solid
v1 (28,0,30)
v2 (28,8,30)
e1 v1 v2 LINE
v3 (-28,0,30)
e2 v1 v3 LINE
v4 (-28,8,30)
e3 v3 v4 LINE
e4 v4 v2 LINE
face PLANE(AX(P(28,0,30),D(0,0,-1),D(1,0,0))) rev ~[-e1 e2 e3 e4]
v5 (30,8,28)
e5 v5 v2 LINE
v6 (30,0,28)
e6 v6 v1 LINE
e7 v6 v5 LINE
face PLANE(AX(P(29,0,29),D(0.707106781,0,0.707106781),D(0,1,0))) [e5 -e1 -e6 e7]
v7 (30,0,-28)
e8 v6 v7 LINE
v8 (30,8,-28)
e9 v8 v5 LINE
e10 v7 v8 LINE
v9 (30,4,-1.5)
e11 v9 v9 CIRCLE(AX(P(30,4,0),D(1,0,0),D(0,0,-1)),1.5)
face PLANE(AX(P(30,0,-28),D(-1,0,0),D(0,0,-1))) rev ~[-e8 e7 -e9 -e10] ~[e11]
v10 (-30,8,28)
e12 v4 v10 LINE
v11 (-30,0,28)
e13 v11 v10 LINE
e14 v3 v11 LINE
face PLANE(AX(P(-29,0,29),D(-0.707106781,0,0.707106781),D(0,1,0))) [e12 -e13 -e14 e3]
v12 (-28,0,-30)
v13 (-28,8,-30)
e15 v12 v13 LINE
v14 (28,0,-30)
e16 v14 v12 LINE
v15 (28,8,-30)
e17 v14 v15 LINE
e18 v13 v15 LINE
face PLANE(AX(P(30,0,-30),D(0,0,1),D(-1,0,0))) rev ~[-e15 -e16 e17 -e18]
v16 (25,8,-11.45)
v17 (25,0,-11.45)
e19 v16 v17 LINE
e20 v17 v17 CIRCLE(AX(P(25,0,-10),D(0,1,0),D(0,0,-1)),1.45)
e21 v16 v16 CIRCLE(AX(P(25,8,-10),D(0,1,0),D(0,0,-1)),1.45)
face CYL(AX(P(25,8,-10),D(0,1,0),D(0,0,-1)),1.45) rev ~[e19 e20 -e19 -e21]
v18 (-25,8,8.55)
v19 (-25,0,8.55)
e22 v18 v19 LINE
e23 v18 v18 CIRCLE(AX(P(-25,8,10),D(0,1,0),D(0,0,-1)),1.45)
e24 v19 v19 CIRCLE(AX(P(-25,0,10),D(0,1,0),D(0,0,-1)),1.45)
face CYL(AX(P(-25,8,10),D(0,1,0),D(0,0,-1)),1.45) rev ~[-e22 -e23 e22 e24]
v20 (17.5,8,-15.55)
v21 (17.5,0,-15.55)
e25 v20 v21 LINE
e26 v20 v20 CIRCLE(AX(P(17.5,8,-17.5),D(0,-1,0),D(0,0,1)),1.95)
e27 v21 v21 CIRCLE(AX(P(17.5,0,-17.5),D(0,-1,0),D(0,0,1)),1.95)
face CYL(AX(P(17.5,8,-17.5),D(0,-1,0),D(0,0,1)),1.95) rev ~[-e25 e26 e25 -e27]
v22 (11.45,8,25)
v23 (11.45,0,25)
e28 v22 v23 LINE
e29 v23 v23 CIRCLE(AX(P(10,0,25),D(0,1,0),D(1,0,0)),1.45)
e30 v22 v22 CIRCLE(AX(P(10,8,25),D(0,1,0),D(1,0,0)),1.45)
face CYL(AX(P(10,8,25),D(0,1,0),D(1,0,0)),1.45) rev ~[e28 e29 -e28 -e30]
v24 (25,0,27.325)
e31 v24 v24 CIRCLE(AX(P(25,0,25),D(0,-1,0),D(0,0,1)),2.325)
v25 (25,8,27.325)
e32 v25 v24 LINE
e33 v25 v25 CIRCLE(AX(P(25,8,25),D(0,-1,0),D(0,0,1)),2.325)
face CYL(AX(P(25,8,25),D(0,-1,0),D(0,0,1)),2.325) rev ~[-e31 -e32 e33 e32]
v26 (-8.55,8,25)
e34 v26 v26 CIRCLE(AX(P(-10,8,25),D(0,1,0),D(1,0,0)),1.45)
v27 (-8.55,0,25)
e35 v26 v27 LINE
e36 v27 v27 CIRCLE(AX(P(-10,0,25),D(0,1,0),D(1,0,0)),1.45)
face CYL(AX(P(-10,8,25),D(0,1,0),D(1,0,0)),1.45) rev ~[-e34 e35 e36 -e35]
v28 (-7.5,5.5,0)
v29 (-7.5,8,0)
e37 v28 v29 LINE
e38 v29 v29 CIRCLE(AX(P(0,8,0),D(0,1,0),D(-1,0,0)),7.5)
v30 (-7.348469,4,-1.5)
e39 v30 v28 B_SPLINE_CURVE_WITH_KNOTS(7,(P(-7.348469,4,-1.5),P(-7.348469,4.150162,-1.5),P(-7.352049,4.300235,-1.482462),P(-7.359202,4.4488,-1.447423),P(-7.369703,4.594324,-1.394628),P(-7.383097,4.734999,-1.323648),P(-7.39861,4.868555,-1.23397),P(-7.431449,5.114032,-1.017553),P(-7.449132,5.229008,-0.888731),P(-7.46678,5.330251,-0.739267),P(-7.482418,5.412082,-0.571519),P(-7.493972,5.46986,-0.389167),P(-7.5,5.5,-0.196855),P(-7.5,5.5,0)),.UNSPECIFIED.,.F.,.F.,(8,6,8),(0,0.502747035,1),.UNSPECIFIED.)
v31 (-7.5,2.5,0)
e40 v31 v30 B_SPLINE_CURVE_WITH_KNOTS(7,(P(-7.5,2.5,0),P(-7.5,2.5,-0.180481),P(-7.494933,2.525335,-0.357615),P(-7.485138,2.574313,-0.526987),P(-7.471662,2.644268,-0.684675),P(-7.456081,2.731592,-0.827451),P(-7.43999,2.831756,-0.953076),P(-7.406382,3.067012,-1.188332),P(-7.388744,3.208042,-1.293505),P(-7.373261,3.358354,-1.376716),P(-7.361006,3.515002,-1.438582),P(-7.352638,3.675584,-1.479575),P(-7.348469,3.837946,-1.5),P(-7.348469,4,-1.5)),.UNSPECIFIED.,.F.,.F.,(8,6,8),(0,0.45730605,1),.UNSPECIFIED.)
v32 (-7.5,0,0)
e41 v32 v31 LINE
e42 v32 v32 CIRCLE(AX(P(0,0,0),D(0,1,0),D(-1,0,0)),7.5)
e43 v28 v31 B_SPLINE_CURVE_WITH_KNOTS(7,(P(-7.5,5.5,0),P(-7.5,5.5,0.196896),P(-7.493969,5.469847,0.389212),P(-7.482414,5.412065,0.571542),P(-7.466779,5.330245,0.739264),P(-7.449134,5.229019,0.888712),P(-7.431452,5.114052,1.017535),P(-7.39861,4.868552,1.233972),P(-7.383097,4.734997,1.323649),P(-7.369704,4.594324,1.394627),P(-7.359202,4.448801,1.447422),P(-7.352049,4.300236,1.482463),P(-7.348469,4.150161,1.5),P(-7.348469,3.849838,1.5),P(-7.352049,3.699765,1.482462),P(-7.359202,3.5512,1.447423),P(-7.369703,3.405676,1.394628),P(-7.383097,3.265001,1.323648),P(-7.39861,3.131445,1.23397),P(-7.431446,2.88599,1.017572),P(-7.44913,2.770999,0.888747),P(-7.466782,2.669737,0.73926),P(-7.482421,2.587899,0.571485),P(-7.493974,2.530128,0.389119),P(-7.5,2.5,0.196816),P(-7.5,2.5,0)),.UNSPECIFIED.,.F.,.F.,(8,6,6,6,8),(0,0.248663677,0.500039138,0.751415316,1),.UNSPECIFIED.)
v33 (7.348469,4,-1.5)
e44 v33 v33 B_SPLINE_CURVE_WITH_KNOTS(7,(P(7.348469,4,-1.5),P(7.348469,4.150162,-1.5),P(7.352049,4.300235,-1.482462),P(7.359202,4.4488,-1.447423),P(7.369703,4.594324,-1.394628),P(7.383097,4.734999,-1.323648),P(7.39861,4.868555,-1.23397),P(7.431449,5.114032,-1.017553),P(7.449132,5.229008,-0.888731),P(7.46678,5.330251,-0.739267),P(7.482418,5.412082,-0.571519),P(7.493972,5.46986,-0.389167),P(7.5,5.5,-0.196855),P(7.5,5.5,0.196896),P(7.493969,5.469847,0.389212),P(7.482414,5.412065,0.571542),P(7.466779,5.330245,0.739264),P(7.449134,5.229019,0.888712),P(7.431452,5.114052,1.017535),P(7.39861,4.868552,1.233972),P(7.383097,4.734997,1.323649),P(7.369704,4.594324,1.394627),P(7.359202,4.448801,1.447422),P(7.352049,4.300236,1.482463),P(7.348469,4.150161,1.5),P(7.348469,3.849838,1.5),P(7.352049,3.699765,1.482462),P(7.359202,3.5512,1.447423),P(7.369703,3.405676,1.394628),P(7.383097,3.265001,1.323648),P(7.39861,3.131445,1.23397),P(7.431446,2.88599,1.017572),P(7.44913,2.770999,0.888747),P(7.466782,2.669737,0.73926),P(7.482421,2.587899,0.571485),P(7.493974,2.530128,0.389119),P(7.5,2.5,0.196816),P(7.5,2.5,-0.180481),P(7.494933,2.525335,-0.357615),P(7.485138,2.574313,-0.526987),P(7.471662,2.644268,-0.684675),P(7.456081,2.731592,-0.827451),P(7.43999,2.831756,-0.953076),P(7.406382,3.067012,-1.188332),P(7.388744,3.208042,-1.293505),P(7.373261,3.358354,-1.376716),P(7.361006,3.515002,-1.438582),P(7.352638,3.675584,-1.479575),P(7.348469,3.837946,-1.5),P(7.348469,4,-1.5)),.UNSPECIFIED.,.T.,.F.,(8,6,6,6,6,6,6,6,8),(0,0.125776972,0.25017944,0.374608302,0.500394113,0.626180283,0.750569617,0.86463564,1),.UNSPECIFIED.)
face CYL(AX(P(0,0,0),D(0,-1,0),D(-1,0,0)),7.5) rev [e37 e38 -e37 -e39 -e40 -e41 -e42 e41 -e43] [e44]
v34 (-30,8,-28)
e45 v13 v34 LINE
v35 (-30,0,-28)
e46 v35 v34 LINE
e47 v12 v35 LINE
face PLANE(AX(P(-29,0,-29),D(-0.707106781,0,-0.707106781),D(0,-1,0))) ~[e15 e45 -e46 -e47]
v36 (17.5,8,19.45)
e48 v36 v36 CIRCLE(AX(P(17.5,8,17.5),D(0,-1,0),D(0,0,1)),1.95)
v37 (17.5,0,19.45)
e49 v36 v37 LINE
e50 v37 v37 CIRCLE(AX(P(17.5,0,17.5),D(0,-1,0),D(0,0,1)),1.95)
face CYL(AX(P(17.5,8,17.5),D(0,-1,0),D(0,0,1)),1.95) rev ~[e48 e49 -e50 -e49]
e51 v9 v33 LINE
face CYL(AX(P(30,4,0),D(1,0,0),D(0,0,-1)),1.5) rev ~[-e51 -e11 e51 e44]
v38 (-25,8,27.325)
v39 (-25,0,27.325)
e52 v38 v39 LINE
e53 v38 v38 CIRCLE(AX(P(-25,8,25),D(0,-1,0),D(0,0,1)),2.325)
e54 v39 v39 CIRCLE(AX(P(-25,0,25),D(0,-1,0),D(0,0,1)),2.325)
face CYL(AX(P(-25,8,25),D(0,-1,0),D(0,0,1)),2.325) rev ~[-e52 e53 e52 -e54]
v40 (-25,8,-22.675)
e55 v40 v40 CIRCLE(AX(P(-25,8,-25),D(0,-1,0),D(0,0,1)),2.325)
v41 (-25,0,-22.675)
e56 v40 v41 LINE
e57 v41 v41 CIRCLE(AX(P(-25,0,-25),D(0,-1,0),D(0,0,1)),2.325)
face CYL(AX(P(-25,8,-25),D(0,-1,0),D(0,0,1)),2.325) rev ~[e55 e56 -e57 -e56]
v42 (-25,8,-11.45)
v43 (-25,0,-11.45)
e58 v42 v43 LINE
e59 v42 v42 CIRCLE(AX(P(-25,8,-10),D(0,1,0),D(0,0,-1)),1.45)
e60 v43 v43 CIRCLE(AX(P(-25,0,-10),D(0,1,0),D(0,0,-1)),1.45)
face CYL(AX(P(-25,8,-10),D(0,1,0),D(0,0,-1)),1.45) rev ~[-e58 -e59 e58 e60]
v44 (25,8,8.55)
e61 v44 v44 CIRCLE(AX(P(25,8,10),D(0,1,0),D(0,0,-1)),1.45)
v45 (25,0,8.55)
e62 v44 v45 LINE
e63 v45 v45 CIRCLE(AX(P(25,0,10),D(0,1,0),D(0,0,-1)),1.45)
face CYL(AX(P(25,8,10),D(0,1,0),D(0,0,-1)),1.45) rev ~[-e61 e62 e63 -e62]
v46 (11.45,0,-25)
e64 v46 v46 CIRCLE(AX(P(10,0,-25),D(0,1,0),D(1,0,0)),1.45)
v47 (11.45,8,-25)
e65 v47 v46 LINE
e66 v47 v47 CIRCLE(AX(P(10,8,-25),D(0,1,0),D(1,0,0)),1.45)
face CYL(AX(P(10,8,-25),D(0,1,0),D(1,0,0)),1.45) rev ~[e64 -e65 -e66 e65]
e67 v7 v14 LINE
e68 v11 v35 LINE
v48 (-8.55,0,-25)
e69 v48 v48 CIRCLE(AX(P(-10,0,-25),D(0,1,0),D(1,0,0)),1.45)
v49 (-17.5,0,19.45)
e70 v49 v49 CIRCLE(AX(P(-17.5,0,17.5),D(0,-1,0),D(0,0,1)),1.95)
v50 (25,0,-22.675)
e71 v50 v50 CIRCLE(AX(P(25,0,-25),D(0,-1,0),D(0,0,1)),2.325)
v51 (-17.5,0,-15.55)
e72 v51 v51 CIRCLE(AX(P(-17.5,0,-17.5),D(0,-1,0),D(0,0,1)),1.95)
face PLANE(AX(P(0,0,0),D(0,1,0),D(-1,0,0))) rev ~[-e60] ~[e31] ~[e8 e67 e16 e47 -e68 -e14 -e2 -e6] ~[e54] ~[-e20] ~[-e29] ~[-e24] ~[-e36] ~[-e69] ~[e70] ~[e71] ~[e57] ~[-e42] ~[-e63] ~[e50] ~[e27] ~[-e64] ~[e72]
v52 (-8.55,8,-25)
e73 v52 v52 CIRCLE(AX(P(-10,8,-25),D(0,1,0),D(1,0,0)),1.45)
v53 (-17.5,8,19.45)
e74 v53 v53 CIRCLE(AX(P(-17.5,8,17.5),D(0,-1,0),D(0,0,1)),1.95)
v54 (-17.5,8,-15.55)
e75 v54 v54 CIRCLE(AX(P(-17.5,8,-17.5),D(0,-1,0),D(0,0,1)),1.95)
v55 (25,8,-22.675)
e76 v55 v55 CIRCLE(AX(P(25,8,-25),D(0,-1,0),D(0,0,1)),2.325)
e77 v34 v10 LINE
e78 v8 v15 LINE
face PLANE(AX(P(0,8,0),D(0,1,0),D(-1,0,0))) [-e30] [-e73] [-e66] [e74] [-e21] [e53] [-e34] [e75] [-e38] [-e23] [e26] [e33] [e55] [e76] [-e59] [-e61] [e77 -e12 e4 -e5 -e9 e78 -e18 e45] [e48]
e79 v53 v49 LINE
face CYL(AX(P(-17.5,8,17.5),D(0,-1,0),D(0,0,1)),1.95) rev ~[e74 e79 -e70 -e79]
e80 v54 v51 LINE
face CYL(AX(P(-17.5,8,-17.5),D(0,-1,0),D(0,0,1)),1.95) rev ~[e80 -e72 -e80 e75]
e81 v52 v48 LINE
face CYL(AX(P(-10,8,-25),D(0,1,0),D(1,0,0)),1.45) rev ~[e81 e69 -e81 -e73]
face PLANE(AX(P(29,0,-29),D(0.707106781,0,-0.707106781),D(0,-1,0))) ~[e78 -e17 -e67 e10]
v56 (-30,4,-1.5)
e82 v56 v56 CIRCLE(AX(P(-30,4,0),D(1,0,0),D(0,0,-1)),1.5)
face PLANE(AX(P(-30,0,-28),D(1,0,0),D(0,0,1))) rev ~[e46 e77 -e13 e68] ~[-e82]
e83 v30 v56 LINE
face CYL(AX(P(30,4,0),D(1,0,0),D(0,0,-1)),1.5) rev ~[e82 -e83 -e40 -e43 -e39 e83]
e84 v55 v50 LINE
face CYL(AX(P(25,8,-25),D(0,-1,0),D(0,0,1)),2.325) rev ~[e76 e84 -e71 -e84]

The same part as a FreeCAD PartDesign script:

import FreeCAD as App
import Part
import Sketcher

V = App.Vector


def edges_at(feature, points):
    """Names of the edges that pass closest to the given points."""
    edges = feature.Shape.Edges
    near = lambda p: min(range(len(edges)), key=lambda i: edges[i].distToShape(Part.Vertex(*p))[0])
    return sorted({f"Edge{near(p) + 1}" for p in points})

doc = App.newDocument("Part")
params = doc.addObject("Spreadsheet::Sheet", "Params")
for row, (alias, value) in enumerate([
    ("sketch1_diameter", "15 mm"),
    ("sketch1_width", "60 mm"),
    ("pad1_length", "8 mm"),
    ("sketch2_diameter", "3.9 mm"),
    ("hole_diameter", "3.9 mm"),
    ("hole_depth", "10 mm"),
    ("chamfer_size", "2 mm"),
    ("sketch3_diameter", "4.65 mm"),
    ("hole2_diameter", "4.65 mm"),
    ("sketch4_diameter", "3 mm"),
    ("sketch5_diameter", "2.9 mm"),
    ("pocket2_length", "10 mm"),
], start=1):
    params.set(f"A{row}", alias)
    params.set(f"B{row}", "=" + value)
    params.setAlias(f"B{row}", alias)

body = doc.addObject("PartDesign::Body", "Body")

# Sketch on XZ plane
sketch1 = body.newObject("Sketcher::SketchObject", "Sketch")
sketch1.AttachmentSupport = (doc.getObject("XZ_Plane"), [""])
sketch1.MapMode = "FlatFace"
sketch1.addGeometry(Part.LineSegment(V(30, -30, 0), V(-30, -30, 0)), False)
sketch1.addGeometry(Part.LineSegment(V(-30, -30, 0), V(-30, 30, 0)), False)
sketch1.addGeometry(Part.LineSegment(V(-30, 30, 0), V(30, 30, 0)), False)
sketch1.addGeometry(Part.LineSegment(V(30, 30, 0), V(30, -30, 0)), False)
sketch1.addGeometry(Part.Circle(V(0, 0, 0), V(0, 0, 1), 8), False)
sketch1.addConstraint(Sketcher.Constraint("Coincident", 0, 2, 1, 1))
sketch1.addConstraint(Sketcher.Constraint("Coincident", 1, 2, 2, 1))
sketch1.addConstraint(Sketcher.Constraint("Coincident", 2, 2, 3, 1))
sketch1.addConstraint(Sketcher.Constraint("Coincident", 3, 2, 0, 1))
sketch1.addConstraint(Sketcher.Constraint("Horizontal", 0))
sketch1.addConstraint(Sketcher.Constraint("Vertical", 1))
sketch1.addConstraint(Sketcher.Constraint("Horizontal", 2))
sketch1.addConstraint(Sketcher.Constraint("Vertical", 3))
sketch1.addConstraint(Sketcher.Constraint("Coincident", 4, 3, -1, 1))
sketch1.addConstraint(Sketcher.Constraint("Symmetric", 0, 2, 2, 2, -1, 1))
sketch1.addConstraint(Sketcher.Constraint("Equal", 2, 1))
sketch1.addConstraint(Sketcher.Constraint("Diameter", 4, 15.0))
sketch1.addConstraint(Sketcher.Constraint("DistanceX", 0, 2, 0, 1, 60.0))
sketch1.setExpression("Constraints[11]", "Params.sketch1_diameter")
sketch1.setExpression("Constraints[12]", "Params.sketch1_width")
pad1 = body.newObject("PartDesign::Pad", "Pad")
pad1.Profile = sketch1
pad1.setExpression("Length", "Params.pad1_length")
pad1.Reversed = True

# Sketch on XZ plane
sketch2 = body.newObject("Sketcher::SketchObject", "Sketch001")
sketch2.AttachmentSupport = (doc.getObject("XZ_Plane"), [""])
sketch2.MapMode = "FlatFace"
sketch2.AttachmentOffset = App.Placement(V(0, 0, -8), App.Rotation())
sketch2.addGeometry(Part.Circle(V(-17.5, 17.5, 0), V(0, 0, 1), 1.9), False)
sketch2.addGeometry(Part.Circle(V(-17.5, -17.5, 0), V(0, 0, 1), 1.9), False)
sketch2.addGeometry(Part.Circle(V(17.5, -17.5, 0), V(0, 0, 1), 1.9), False)
sketch2.addGeometry(Part.Circle(V(17.5, 17.5, 0), V(0, 0, 1), 1.9), False)
sketch2.addConstraint(Sketcher.Constraint("Equal", 0, 1))
sketch2.addConstraint(Sketcher.Constraint("Equal", 1, 2))
sketch2.addConstraint(Sketcher.Constraint("Equal", 2, 3))
sketch2.addConstraint(Sketcher.Constraint("Symmetric", 0, 3, 2, 3, -1, 1))
sketch2.addConstraint(Sketcher.Constraint("Symmetric", 1, 3, 3, 3, -1, 1))
sketch2.addConstraint(Sketcher.Constraint("Symmetric", 1, 3, 2, 3, -2))
sketch2.addConstraint(Sketcher.Constraint("Diameter", 0, 3.9))
sketch2.addConstraint(Sketcher.Constraint("DistanceY", 1, 3, 0, 3, 35.0))
sketch2.addConstraint(Sketcher.Constraint("DistanceX", 1, 3, 2, 3, 35.0))
sketch2.setExpression("Constraints[6]", "Params.sketch2_diameter")
doc.recompute()
hole = body.newObject("PartDesign::Hole", "Hole")
hole.Profile = sketch2
hole.ThreadType = "None"
hole.setExpression("Diameter", "Params.hole_diameter")
hole.DepthType = "Dimension"
hole.setExpression("Depth", "Params.hole_depth")
hole.DrillPoint = "Angled"
hole.DrillPointAngle = 118
hole.Reversed = True
doc.recompute()

chamfer = body.newObject("PartDesign::Chamfer", "Chamfer")
chamfer.Base = (hole, edges_at(hole, [
    (30, 4, 30),
    (30, 4, -30),
    (-30, 4, -30),
    (-30, 4, 30),
]))
chamfer.setExpression("Size", "Params.chamfer_size")

# Sketch on XZ plane
sketch3 = body.newObject("Sketcher::SketchObject", "Sketch002")
sketch3.AttachmentSupport = (doc.getObject("XZ_Plane"), [""])
sketch3.MapMode = "FlatFace"
sketch3.AttachmentOffset = App.Placement(V(0, 0, -8), App.Rotation())
sketch3.addGeometry(Part.Circle(V(-25, -25, 0), V(0, 0, 1), 2.3), False)
sketch3.addGeometry(Part.Circle(V(25, -25, 0), V(0, 0, 1), 2.3), False)
sketch3.addGeometry(Part.Circle(V(25, 25, 0), V(0, 0, 1), 2.3), False)
sketch3.addGeometry(Part.Circle(V(-25, 25, 0), V(0, 0, 1), 2.3), False)
sketch3.addConstraint(Sketcher.Constraint("Equal", 0, 1))
sketch3.addConstraint(Sketcher.Constraint("Equal", 1, 2))
sketch3.addConstraint(Sketcher.Constraint("Equal", 2, 3))
sketch3.addConstraint(Sketcher.Constraint("Symmetric", 0, 3, 2, 3, -1, 1))
sketch3.addConstraint(Sketcher.Constraint("Symmetric", 1, 3, 3, 3, -1, 1))
sketch3.addConstraint(Sketcher.Constraint("Symmetric", 0, 3, 1, 3, -2))
sketch3.addConstraint(Sketcher.Constraint("Diameter", 0, 4.65))
sketch3.addConstraint(Sketcher.Constraint("DistanceX", 0, 3, -1, 1, 25.0))
sketch3.addConstraint(Sketcher.Constraint("DistanceY", 0, 3, -1, 1, 25.0))
sketch3.setExpression("Constraints[6]", "Params.sketch3_diameter")
doc.recompute()
hole2 = body.newObject("PartDesign::Hole", "Hole001")
hole2.Profile = sketch3
hole2.ThreadType = "None"
hole2.setExpression("Diameter", "Params.hole2_diameter")
hole2.DepthType = "ThroughAll"
hole2.Reversed = True

# Sketch on YZ plane
sketch4 = body.newObject("Sketcher::SketchObject", "Sketch003")
sketch4.AttachmentSupport = (doc.getObject("YZ_Plane"), [""])
sketch4.MapMode = "FlatFace"
sketch4.AttachmentOffset = App.Placement(V(0, 0, 30), App.Rotation())
sketch4.addGeometry(Part.Circle(V(4, 0, 0), V(0, 0, 1), 1.5), False)
sketch4.addConstraint(Sketcher.Constraint("PointOnObject", 0, 3, -1))
sketch4.addConstraint(Sketcher.Constraint("Diameter", 0, 3.0))
sketch4.addConstraint(Sketcher.Constraint("DistanceX", -1, 1, 0, 3, 4.0))
sketch4.setExpression("Constraints[1]", "Params.sketch4_diameter")
pocket1 = body.newObject("PartDesign::Pocket", "Pocket")
pocket1.Profile = sketch4
pocket1.Type = "ThroughAll"

# Sketch on XZ plane
sketch5 = body.newObject("Sketcher::SketchObject", "Sketch004")
sketch5.AttachmentSupport = (doc.getObject("XZ_Plane"), [""])
sketch5.MapMode = "FlatFace"
sketch5.AttachmentOffset = App.Placement(V(0, 0, -8), App.Rotation())
sketch5.addGeometry(Part.Circle(V(10, 25, 0), V(0, 0, 1), 1.4), False)
sketch5.addGeometry(Part.Circle(V(-10, 25, 0), V(0, 0, 1), 1.4), False)
sketch5.addGeometry(Part.Circle(V(10, -25, 0), V(0, 0, 1), 1.4), False)
sketch5.addGeometry(Part.Circle(V(-10, -25, 0), V(0, 0, 1), 1.4), False)
sketch5.addConstraint(Sketcher.Constraint("Equal", 0, 1))
sketch5.addConstraint(Sketcher.Constraint("Equal", 1, 2))
sketch5.addConstraint(Sketcher.Constraint("Equal", 2, 3))
sketch5.addConstraint(Sketcher.Constraint("Symmetric", 1, 3, 2, 3, -1, 1))
sketch5.addConstraint(Sketcher.Constraint("Symmetric", 0, 3, 3, 3, -1, 1))
sketch5.addConstraint(Sketcher.Constraint("Symmetric", 0, 3, 1, 3, -2))
sketch5.addConstraint(Sketcher.Constraint("Diameter", 0, 2.9))
sketch5.addConstraint(Sketcher.Constraint("DistanceX", -1, 1, 0, 3, 10.0))
sketch5.addConstraint(Sketcher.Constraint("DistanceY", -1, 1, 0, 3, 25.0))
sketch5.setExpression("Constraints[6]", "Params.sketch5_diameter")
pocket2 = body.newObject("PartDesign::Pocket", "Pocket001")
pocket2.Profile = sketch5
pocket2.setExpression("Length", "Params.pocket2_length")
pocket2.Reversed = True
doc.recompute()

polarpattern = body.newObject("PartDesign::PolarPattern", "PolarPattern")
polarpattern.Originals = [pocket2]
polarpattern.Axis = (doc.getObject("Y_Axis"), [""])
polarpattern.Angle = 90
polarpattern.Occurrences = 2
body.Tip = polarpattern

doc.recompute()
